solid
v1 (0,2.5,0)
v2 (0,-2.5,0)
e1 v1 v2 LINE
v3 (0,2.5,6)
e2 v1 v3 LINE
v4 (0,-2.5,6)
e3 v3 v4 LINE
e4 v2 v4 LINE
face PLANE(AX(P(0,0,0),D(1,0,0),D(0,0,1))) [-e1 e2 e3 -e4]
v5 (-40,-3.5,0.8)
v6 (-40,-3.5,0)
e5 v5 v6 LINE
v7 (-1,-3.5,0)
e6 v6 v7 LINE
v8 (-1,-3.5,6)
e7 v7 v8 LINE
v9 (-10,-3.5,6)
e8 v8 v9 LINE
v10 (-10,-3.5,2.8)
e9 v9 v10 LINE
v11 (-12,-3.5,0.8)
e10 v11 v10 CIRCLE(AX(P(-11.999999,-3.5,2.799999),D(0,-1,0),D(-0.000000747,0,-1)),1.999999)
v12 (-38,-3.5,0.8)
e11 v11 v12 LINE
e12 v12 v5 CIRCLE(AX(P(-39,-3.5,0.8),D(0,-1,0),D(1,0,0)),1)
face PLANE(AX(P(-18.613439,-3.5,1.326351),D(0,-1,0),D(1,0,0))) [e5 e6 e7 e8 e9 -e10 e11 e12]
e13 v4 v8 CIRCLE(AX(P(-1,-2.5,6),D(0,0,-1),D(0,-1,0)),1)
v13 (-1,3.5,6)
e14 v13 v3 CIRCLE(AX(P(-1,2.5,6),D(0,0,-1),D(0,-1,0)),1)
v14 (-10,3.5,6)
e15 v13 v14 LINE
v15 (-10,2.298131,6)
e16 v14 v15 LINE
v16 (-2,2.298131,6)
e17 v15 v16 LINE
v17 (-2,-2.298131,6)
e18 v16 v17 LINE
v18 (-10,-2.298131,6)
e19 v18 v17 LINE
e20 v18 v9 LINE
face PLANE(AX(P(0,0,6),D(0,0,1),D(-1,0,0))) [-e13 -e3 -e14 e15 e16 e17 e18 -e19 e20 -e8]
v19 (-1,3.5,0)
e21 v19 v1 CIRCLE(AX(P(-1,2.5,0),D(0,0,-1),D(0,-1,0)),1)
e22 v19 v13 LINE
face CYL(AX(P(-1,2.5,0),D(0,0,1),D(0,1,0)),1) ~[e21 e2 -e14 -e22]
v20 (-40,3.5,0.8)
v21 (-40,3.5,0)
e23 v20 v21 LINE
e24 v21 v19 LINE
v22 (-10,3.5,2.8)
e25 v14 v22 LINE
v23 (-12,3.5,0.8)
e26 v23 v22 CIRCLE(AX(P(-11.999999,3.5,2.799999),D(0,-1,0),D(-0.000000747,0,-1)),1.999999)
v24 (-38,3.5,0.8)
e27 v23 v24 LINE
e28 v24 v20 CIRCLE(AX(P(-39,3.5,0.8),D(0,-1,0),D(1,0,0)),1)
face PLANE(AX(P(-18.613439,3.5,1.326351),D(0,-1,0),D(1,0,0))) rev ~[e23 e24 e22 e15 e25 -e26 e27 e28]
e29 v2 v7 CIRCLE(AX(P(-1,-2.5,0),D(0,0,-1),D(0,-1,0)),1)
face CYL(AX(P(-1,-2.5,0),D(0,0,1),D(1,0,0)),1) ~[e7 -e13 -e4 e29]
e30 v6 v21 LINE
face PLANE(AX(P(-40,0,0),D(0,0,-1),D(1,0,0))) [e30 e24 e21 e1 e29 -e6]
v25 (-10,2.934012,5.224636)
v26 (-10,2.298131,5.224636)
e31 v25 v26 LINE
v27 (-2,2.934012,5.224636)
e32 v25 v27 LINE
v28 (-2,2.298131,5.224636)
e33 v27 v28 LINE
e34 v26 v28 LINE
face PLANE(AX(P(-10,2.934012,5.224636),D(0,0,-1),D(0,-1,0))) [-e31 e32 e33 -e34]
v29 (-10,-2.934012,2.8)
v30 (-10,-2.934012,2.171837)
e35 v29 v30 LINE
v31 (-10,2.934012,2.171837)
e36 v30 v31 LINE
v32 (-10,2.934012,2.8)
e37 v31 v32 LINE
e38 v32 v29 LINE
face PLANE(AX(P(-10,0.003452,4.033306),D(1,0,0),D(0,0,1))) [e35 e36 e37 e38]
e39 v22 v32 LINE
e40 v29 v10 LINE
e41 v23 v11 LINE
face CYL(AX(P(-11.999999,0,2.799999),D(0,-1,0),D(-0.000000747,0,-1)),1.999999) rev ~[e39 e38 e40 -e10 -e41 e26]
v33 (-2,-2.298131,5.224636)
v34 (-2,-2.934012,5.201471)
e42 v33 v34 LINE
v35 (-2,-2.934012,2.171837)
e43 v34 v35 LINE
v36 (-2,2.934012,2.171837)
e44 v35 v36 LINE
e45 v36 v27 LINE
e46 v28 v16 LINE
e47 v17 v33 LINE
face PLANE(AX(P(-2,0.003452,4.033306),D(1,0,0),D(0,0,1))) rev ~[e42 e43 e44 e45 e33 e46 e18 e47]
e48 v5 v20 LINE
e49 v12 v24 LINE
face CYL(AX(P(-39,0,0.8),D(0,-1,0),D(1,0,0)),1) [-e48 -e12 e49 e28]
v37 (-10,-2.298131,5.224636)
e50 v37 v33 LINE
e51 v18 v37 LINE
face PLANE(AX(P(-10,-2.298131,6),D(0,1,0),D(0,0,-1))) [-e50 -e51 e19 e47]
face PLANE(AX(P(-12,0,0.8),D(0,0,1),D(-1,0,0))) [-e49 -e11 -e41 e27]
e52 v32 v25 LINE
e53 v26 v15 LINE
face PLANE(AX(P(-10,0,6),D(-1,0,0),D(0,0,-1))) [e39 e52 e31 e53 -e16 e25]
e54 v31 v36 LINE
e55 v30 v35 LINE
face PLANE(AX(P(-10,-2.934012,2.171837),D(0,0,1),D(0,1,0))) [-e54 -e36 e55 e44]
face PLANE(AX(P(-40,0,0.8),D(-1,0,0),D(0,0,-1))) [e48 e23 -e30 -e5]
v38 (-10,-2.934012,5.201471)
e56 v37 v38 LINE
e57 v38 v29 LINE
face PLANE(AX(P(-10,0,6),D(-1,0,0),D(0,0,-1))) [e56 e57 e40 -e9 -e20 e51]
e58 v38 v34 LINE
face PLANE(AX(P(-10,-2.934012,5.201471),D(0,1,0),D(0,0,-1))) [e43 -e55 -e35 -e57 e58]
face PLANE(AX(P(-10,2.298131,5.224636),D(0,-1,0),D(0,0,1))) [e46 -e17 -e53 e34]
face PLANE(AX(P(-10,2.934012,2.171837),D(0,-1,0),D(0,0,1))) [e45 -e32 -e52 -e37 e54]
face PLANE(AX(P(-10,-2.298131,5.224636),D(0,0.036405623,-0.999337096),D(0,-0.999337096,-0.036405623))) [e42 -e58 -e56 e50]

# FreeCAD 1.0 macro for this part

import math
import FreeCAD as App
import Part
import Sketcher

V = App.Vector


def edges_at(feature, points):
    """Names of the edges that pass closest to the given points."""
    edges = feature.Shape.Edges
    near = lambda p: min(range(len(edges)), key=lambda i: edges[i].distToShape(Part.Vertex(*p))[0])
    return sorted({f"Edge{near(p) + 1}" for p in points})

doc = App.newDocument("Part")
body = doc.addObject("PartDesign::Body", "Body")

sketch1 = body.newObject("Sketcher::SketchObject", "Sketch")
sketch1.AttachmentSupport = (doc.getObject("XZ_Plane"), [""])
sketch1.MapMode = "FlatFace"
sketch1.addGeometry(Part.LineSegment(V(-40, 0, 0), V(0, 0, 0)), False)
sketch1.addGeometry(Part.LineSegment(V(0, 0, 0), V(0, 6, 0)), False)
sketch1.addGeometry(Part.LineSegment(V(0, 6, 0), V(-10, 6, 0)), False)
sketch1.addGeometry(Part.LineSegment(V(-10, 6, 0), V(-10, 2.8, 0)), False)
sketch1.addGeometry(Part.ArcOfCircle(Part.Circle(V(-12, 2.8, 0), V(0, 0, 1), 2), math.radians(-90), math.radians(0)), False)
sketch1.addGeometry(Part.LineSegment(V(-12, 0.8, 0), V(-38, 0.8, 0)), False)
sketch1.addGeometry(Part.ArcOfCircle(Part.Circle(V(-39, 0.8, 0), V(0, 0, 1), 1), math.radians(0), math.radians(180)), False)
sketch1.addGeometry(Part.LineSegment(V(-40, 0.8, 0), V(-40, 0, 0)), False)
sketch1.addConstraint(Sketcher.Constraint("Coincident", 0, 2, 1, 1))
sketch1.addConstraint(Sketcher.Constraint("Coincident", 1, 2, 2, 1))
sketch1.addConstraint(Sketcher.Constraint("Coincident", 2, 2, 3, 1))
sketch1.addConstraint(Sketcher.Constraint("Tangent", 3, 2, 4, 2))
sketch1.addConstraint(Sketcher.Constraint("Tangent", 4, 1, 5, 1))
sketch1.addConstraint(Sketcher.Constraint("Coincident", 5, 2, 6, 1))
sketch1.addConstraint(Sketcher.Constraint("Tangent", 6, 2, 7, 1))
sketch1.addConstraint(Sketcher.Constraint("Coincident", 7, 2, 0, 1))
sketch1.addConstraint(Sketcher.Constraint("Horizontal", 0))
sketch1.addConstraint(Sketcher.Constraint("Vertical", 1))
sketch1.addConstraint(Sketcher.Constraint("Horizontal", 2))
sketch1.addConstraint(Sketcher.Constraint("Vertical", 3))
sketch1.addConstraint(Sketcher.Constraint("Horizontal", 5))
sketch1.addConstraint(Sketcher.Constraint("Vertical", 7))
sketch1.addConstraint(Sketcher.Constraint("Coincident", 0, 2, -1, 1))
sketch1.addConstraint(Sketcher.Constraint("Horizontal", 6, 3, 4, 1))
sketch1.addConstraint(Sketcher.Constraint("Radius", 4, 1.999999))
sketch1.addConstraint(Sketcher.Constraint("Radius", 6, 1.0))
sketch1.addConstraint(Sketcher.Constraint("DistanceX", 0, 1, 0, 2, 40.0))
sketch1.addConstraint(Sketcher.Constraint("DistanceX", 2, 2, 2, 1, 10.0))
sketch1.addConstraint(Sketcher.Constraint("DistanceY", 1, 1, 1, 2, 6.0))
sketch1.addConstraint(Sketcher.Constraint("DistanceY", 3, 2, 3, 1, 3.2))
pad1 = body.newObject("PartDesign::Pad", "Pad")
pad1.Profile = sketch1
pad1.Length = 7
pad1.Midplane = True

sketch2 = body.newObject("Sketcher::SketchObject", "Sketch001")
sketch2.AttachmentSupport = (doc.getObject("YZ_Plane"), [""])
sketch2.MapMode = "FlatFace"
sketch2.AttachmentOffset = App.Placement(V(0, 0, -10), App.Rotation())
sketch2.addGeometry(Part.LineSegment(V(-2.3, 6, 0), V(2.3, 6, 0)), False)
sketch2.addGeometry(Part.LineSegment(V(2.3, 6, 0), V(2.3, 5.2, 0)), False)
sketch2.addGeometry(Part.LineSegment(V(2.3, 5.2, 0), V(2.9, 5.2, 0)), False)
sketch2.addGeometry(Part.LineSegment(V(2.9, 5.2, 0), V(2.9, 2.2, 0)), False)
sketch2.addGeometry(Part.LineSegment(V(2.9, 2.2, 0), V(-2.9, 2.2, 0)), False)
sketch2.addGeometry(Part.LineSegment(V(-2.9, 2.2, 0), V(-2.9, 5.2, 0)), False)
sketch2.addGeometry(Part.LineSegment(V(-2.9, 5.2, 0), V(-2.3, 5.2, 0)), False)
sketch2.addGeometry(Part.LineSegment(V(-2.3, 5.2, 0), V(-2.3, 6, 0)), False)
sketch2.addConstraint(Sketcher.Constraint("Coincident", 0, 2, 1, 1))
sketch2.addConstraint(Sketcher.Constraint("Coincident", 1, 2, 2, 1))
sketch2.addConstraint(Sketcher.Constraint("Coincident", 2, 2, 3, 1))
sketch2.addConstraint(Sketcher.Constraint("Coincident", 3, 2, 4, 1))
sketch2.addConstraint(Sketcher.Constraint("Coincident", 4, 2, 5, 1))
sketch2.addConstraint(Sketcher.Constraint("Coincident", 5, 2, 6, 1))
sketch2.addConstraint(Sketcher.Constraint("Coincident", 6, 2, 7, 1))
sketch2.addConstraint(Sketcher.Constraint("Coincident", 7, 2, 0, 1))
sketch2.addConstraint(Sketcher.Constraint("Horizontal", 0))
sketch2.addConstraint(Sketcher.Constraint("Vertical", 1))
sketch2.addConstraint(Sketcher.Constraint("Horizontal", 2))
sketch2.addConstraint(Sketcher.Constraint("Vertical", 3))
sketch2.addConstraint(Sketcher.Constraint("Horizontal", 4))
sketch2.addConstraint(Sketcher.Constraint("Vertical", 5))
sketch2.addConstraint(Sketcher.Constraint("Vertical", 7))
sketch2.addConstraint(Sketcher.Constraint("Symmetric", 1, 2, 6, 2, -2))
sketch2.addConstraint(Sketcher.Constraint("DistanceY", -1, 1, 0, 2, 6.0))
sketch2.addConstraint(Sketcher.Constraint("DistanceY", 3, 2, 3, 1, 3.052799))
sketch2.addConstraint(Sketcher.Constraint("DistanceX", 2, 1, 2, 2, 0.635881))
sketch2.addConstraint(Sketcher.Constraint("DistanceX", 0, 1, 0, 2, 4.596262))
sketch2.addConstraint(Sketcher.Constraint("DistanceX", 4, 2, 4, 1, 5.868024))
sketch2.addConstraint(Sketcher.Constraint("DistanceY", 1, 2, 1, 1, 0.775364))
sketch2.addConstraint(Sketcher.Constraint("DistanceY", 5, 1, 5, 2, 3.029634))
pocket1 = body.newObject("PartDesign::Pocket", "Pocket")
pocket1.Profile = sketch2
pocket1.Length = 8
pocket1.Reversed = True
doc.recompute()

fillet = body.newObject("PartDesign::Fillet", "Fillet")
fillet.Base = (pocket1, edges_at(pocket1, [(0, -3.5, 3), (0, 3.5, 3)]))
fillet.Radius = 1

doc.recompute()
